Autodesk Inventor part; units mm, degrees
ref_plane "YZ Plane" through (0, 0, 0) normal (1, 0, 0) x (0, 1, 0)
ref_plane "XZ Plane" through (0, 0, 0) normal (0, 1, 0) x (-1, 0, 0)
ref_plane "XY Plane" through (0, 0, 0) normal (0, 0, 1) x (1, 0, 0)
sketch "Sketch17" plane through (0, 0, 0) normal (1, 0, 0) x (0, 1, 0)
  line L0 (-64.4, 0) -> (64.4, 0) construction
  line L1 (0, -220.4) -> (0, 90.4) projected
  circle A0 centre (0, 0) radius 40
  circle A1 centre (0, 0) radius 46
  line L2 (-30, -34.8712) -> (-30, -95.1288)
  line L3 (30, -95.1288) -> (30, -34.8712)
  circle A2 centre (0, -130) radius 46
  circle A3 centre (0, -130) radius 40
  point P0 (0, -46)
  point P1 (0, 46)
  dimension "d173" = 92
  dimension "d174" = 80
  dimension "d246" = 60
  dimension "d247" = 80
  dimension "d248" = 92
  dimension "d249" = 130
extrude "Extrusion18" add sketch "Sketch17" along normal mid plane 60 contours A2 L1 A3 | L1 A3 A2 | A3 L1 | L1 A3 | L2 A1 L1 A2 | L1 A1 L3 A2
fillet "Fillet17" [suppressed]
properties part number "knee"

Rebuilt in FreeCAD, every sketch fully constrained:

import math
import FreeCAD as App
import Part
import Sketcher

doc = App.newDocument("Part")
body = doc.addObject("PartDesign::Body", "Body")

sketch1 = doc.addObject("Sketcher::SketchObject", "Sketch")
body.addObject(sketch1)
sketch1.AttachmentSupport = (doc.YZ_Plane, [""])
sketch1.MapMode = "FlatFace"
sketch1.addGeometry([
    Part.ArcOfCircle(Part.Circle(App.Vector(0, -130, 0), App.Vector(0, 0, 1), 46), math.radians(131), math.radians(409)),
    Part.LineSegment(App.Vector(30, -95, 0), App.Vector(30, -35, 0)),
    Part.ArcOfCircle(Part.Circle(App.Vector(0, 0, 0), App.Vector(0, 0, 1), 46), math.radians(-131), math.radians(-49)),
    Part.LineSegment(App.Vector(-30, -35, 0), App.Vector(-30, -95, 0)),
], False)
sketch1.addConstraint([
    Sketcher.Constraint("Coincident", 0, 2, 1, 1),
    Sketcher.Constraint("Coincident", 1, 2, 2, 2),
    Sketcher.Constraint("Coincident", 2, 1, 3, 1),
    Sketcher.Constraint("Coincident", 3, 2, 0, 1),
    Sketcher.Constraint("Vertical", 1),
    Sketcher.Constraint("Vertical", 3),
    Sketcher.Constraint("Coincident", 2, 3, -1, 1),
    Sketcher.Constraint("Equal", 0, 2),
    Sketcher.Constraint("Symmetric", 0, 2, 3, 2, -2),
    Sketcher.Constraint("Radius", 0, 46.0),
    Sketcher.Constraint("DistanceY", 0, 3, -1, 1, 130.0),
    Sketcher.Constraint("DistanceX", 2, 1, 1, 2, 60.0),
])
pad1 = doc.addObject("PartDesign::Pad", "Pad")
body.addObject(pad1)
pad1.Profile = sketch1
pad1.Length = 60
pad1.Midplane = True

doc.recompute()
